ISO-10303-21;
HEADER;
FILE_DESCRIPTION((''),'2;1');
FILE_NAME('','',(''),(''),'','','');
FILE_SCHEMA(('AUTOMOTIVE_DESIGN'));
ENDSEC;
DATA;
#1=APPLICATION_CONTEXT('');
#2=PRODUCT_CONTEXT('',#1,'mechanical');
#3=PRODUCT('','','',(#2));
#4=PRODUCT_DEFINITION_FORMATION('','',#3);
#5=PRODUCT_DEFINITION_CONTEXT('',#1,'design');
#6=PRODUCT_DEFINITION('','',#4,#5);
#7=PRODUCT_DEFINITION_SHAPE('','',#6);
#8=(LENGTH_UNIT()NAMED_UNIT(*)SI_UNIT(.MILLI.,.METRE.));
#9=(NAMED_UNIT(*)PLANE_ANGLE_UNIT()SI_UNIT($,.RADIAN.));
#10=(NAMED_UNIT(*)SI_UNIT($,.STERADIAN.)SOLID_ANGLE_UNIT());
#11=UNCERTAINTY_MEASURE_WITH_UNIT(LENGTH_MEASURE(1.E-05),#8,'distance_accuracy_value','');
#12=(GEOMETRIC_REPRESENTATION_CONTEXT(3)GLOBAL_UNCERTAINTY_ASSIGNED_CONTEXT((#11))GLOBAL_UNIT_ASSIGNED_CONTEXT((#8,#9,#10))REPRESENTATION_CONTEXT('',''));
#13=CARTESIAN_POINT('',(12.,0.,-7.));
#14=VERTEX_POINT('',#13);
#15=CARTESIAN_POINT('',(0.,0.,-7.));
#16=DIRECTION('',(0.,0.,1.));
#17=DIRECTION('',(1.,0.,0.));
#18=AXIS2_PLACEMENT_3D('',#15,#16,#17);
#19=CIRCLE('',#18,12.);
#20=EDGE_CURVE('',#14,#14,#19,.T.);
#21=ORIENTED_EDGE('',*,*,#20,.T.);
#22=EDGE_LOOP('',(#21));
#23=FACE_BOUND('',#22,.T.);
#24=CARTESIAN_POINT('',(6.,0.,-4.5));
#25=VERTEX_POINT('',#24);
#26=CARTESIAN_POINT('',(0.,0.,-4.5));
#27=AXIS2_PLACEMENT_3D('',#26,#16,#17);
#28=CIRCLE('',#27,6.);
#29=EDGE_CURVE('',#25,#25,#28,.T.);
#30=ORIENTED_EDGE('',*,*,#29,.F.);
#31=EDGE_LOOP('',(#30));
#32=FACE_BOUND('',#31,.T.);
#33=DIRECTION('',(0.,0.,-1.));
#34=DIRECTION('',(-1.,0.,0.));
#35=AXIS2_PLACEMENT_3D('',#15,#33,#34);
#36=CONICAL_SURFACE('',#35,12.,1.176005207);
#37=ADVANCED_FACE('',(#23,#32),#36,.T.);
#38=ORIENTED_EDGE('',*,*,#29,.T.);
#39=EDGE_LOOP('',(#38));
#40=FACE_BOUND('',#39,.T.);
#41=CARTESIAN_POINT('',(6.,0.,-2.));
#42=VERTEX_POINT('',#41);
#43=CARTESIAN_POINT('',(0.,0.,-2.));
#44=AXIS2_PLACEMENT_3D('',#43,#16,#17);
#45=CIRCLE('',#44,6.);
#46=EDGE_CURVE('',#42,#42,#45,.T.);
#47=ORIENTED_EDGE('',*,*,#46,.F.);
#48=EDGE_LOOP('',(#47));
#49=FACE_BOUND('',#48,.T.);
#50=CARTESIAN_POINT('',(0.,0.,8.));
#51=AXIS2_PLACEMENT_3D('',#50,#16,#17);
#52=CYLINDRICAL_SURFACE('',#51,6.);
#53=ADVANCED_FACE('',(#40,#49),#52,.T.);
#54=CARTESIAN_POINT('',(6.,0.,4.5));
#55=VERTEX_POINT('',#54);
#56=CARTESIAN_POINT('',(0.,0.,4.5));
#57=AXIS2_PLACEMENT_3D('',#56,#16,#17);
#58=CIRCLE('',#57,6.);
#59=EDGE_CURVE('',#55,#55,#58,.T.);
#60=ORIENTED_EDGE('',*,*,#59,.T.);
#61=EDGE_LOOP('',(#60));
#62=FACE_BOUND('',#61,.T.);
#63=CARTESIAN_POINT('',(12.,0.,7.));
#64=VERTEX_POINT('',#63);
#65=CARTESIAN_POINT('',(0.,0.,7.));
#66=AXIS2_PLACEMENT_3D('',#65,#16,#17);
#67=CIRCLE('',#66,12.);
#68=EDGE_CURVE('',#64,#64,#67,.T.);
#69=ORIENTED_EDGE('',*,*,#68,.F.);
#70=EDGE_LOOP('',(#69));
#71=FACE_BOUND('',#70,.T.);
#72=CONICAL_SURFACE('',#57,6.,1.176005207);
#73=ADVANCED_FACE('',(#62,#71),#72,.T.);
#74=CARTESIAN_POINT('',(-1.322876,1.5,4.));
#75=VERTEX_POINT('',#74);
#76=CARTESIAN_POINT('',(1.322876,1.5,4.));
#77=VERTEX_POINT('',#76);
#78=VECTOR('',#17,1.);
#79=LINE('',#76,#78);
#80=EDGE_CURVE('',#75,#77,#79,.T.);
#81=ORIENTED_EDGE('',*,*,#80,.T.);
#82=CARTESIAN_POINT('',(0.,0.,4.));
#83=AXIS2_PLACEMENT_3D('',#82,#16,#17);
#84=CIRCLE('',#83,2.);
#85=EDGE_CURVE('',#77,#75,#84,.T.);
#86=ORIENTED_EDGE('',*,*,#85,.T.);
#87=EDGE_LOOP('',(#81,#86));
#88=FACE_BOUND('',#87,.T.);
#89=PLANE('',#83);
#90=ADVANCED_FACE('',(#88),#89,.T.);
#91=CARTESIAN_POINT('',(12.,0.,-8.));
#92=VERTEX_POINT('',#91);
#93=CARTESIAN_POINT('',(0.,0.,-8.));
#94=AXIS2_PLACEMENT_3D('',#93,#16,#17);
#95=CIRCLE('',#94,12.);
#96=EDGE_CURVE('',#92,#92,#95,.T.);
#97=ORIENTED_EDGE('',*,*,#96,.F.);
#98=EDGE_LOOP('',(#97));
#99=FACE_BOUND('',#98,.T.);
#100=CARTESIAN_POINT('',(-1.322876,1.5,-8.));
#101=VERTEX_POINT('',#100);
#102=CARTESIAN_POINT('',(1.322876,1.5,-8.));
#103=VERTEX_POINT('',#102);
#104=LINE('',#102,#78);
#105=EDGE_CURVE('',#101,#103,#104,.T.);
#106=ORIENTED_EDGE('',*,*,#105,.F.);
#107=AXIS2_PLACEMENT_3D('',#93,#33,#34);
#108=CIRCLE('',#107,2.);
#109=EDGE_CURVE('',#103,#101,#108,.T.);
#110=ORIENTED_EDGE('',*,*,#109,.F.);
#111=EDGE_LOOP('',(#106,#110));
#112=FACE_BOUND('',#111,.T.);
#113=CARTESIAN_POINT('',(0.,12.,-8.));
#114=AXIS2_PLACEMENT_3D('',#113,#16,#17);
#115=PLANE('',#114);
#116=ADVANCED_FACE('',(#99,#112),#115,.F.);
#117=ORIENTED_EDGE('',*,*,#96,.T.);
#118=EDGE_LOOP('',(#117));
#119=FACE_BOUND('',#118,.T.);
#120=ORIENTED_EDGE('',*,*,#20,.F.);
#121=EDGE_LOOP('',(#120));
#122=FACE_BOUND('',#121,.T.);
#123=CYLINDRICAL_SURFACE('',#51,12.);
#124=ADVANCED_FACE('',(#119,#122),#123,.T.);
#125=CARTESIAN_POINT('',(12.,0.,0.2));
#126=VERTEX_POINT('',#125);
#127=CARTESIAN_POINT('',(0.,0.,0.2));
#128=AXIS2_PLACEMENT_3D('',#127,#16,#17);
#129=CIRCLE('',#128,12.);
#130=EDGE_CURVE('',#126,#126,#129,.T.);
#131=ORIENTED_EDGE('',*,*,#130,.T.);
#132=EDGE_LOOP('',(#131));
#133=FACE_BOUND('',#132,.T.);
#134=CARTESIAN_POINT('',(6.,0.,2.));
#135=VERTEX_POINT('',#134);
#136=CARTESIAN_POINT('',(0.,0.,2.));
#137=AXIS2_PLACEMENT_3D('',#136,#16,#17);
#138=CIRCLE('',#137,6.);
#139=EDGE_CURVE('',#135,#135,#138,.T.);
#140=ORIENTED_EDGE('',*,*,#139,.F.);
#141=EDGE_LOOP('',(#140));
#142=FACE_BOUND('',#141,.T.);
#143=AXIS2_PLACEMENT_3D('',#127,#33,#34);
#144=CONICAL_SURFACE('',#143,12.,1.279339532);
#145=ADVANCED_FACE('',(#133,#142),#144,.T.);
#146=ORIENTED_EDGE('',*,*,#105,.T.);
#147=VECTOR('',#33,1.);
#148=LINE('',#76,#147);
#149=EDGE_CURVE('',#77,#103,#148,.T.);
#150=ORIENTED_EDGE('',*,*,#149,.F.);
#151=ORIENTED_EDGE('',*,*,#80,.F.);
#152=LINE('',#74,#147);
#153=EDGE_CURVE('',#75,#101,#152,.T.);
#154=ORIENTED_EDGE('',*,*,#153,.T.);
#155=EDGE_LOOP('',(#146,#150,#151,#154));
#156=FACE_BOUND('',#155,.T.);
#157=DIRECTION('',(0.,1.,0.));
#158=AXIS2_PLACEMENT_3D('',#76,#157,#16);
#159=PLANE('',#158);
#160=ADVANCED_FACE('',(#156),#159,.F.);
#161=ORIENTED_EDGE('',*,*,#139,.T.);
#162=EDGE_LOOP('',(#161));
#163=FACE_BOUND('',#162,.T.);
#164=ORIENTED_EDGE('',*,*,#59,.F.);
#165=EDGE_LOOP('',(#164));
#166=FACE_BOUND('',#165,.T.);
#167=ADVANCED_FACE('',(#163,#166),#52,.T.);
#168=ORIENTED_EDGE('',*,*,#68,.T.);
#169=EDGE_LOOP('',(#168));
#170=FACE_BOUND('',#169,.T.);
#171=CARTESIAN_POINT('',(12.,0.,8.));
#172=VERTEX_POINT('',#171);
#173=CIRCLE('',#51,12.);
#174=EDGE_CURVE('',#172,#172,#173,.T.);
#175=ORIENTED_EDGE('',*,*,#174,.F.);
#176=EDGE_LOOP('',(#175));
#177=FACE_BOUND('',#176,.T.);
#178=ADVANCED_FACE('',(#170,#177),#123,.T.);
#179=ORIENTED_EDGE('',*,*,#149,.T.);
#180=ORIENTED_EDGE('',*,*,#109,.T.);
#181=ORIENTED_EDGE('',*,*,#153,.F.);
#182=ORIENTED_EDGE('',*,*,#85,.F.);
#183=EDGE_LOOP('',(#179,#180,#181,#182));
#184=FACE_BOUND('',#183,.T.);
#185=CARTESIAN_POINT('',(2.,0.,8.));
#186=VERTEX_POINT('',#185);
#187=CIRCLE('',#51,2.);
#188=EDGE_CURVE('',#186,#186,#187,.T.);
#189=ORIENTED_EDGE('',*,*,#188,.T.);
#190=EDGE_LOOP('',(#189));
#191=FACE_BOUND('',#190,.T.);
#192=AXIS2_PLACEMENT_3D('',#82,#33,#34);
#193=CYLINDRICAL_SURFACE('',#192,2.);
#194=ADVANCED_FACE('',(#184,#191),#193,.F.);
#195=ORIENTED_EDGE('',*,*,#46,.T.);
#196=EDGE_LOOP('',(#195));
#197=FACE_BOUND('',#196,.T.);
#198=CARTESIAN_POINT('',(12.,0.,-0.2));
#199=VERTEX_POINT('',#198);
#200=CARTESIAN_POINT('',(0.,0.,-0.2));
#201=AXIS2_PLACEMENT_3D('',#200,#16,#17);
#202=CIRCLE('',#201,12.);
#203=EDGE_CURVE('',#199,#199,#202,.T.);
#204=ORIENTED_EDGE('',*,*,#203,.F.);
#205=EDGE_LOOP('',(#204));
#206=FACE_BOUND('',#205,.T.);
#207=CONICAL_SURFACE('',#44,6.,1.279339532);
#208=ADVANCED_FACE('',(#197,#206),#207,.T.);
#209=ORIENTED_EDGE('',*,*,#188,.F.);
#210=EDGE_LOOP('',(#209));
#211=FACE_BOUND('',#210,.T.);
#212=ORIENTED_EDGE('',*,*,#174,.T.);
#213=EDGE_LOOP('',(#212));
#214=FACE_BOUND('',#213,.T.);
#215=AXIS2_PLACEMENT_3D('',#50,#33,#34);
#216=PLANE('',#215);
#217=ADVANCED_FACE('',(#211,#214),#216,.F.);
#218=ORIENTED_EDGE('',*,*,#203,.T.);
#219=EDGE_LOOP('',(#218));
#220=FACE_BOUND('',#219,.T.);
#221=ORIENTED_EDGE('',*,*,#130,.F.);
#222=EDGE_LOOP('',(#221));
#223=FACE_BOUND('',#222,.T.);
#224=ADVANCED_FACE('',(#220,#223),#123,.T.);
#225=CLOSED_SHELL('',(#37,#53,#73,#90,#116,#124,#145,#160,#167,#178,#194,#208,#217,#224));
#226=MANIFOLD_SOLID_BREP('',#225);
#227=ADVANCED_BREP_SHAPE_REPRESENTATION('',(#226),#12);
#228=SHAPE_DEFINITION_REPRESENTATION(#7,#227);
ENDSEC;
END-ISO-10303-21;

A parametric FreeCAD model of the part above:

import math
import FreeCAD as App
import Part
import Sketcher
Q = App.Units.Quantity


def add_polygon(sketch, points):
    """Adds a closed chain of lines whose ends are joined by coincident constraints."""
    first, n = sketch.GeometryCount, len(points)
    for a, b in zip(points, points[1:] + points[:1]):
        sketch.addGeometry(Part.LineSegment(App.Vector(*a, 0), App.Vector(*b, 0)), False)
    for i in range(n):
        sketch.addConstraint(Sketcher.Constraint("Coincident", first + i, 2, first + (i + 1) % n, 1))

doc = App.newDocument("Part")
params = doc.addObject("Spreadsheet::Sheet", "Params")
for row, (alias, value) in enumerate([
    ("sketch1_width", "12 mm"),
    ("sketch1_height", "16 mm"),
    ("sketch1_height2", "1 mm"),
    ("sketch1_height3", "2.5 mm"),
    ("sketch1_height4", "0.4 mm"),
    ("revolution_angle", "360 deg"),
    ("sketch2_radius", "2 mm"),
    ("pocket1_length", "12 mm"),
    ("sketch3_diameter", "4 mm"),
    ("pocket2_length", "4 mm"),
], start=1):
    params.set(f"A{row}", alias)
    params.set(f"B{row}", "=" + value)
    params.setAlias(f"B{row}", alias)

body = doc.addObject("PartDesign::Body", "Body")

sketch1 = doc.addObject("Sketcher::SketchObject", "Sketch")
body.addObject(sketch1)
sketch1.AttachmentSupport = (doc.YZ_Plane, [""])
sketch1.MapMode = "FlatFace"
add_polygon(sketch1, [(0, 8), (0, -8), (12, -8), (12, -7), (6, -4.5), (6, -2), (12, -0.2), (12, 0.2), (6, 2), (6, 4.5), (12, 7), (12, 8)])
sketch1.addConstraint([
    Sketcher.Constraint("Vertical", 0),
    Sketcher.Constraint("Horizontal", 1),
    Sketcher.Constraint("Vertical", 2),
    Sketcher.Constraint("Vertical", 4),
    Sketcher.Constraint("Vertical", 6),
    Sketcher.Constraint("Vertical", 8),
    Sketcher.Constraint("Vertical", 10),
    Sketcher.Constraint("Horizontal", 11),
    Sketcher.Constraint("Symmetric", 0, 2, 11, 2, -1, 1),
    Sketcher.Constraint("Symmetric", 4, 2, 7, 2, -1),
    Sketcher.Constraint("Symmetric", 2, 2, 9, 2, -1),
    Sketcher.Constraint("Vertical", 2, 2, 5, 2),
    Sketcher.Constraint("Equal", 4, 8),
    Sketcher.Constraint("Equal", 5, 7),
    Sketcher.Constraint("DistanceX", 1, 1, 1, 2, Q("12 mm")),
    Sketcher.Constraint("DistanceY", 0, 2, 0, 1, Q("16 mm")),
    Sketcher.Constraint("DistanceY", 2, 1, 2, 2, Q("1 mm")),
    Sketcher.Constraint("DistanceY", 4, 1, 4, 2, Q("2.5 mm")),
    Sketcher.Constraint("DistanceY", 6, 1, 6, 2, Q("0.4 mm")),
    Sketcher.Constraint("DistanceX", -1, 1, 3, 2, Q("6 mm")),
    Sketcher.Constraint("DistanceY", 4, 2, -1, 1, Q("2 mm")),
])
sketch1.setExpression("Constraints[26]", "Params.sketch1_width")
sketch1.setExpression("Constraints[27]", "Params.sketch1_height")
sketch1.setExpression("Constraints[28]", "Params.sketch1_height2")
sketch1.setExpression("Constraints[29]", "Params.sketch1_height3")
sketch1.setExpression("Constraints[30]", "Params.sketch1_height4")
revolution = doc.addObject("PartDesign::Revolution", "Revolution")
body.addObject(revolution)
revolution.Profile = sketch1
revolution.ReferenceAxis = (sketch1, ["V_Axis"])
revolution.setExpression("Angle", "Params.revolution_angle")

sketch2 = doc.addObject("Sketcher::SketchObject", "Sketch001")
body.addObject(sketch2)
sketch2.AttachmentSupport = (doc.XY_Plane, [""])
sketch2.MapMode = "FlatFace"
sketch2.AttachmentOffset = App.Placement(App.Vector(0, 0, -8), App.Rotation())
sketch2.addGeometry([
    Part.LineSegment(App.Vector(-1.322876, 1.5, 0), App.Vector(1.322876, 1.5, 0)),
    Part.ArcOfCircle(Part.Circle(App.Vector(0, 0, 0), App.Vector(0, 0, 1), 2), math.radians(131.409622), math.radians(408.590378)),
], False)
sketch2.addConstraint([
    Sketcher.Constraint("Coincident", 0, 1, 1, 1),
    Sketcher.Constraint("Coincident", 1, 2, 0, 2),
    Sketcher.Constraint("Horizontal", 0),
    Sketcher.Constraint("Coincident", 1, 3, -1, 1),
    Sketcher.Constraint("Radius", 1, Q("2 mm")),
    Sketcher.Constraint("DistanceY", -1, 1, 0, 1, Q("1.5 mm")),
])
sketch2.setExpression("Constraints[4]", "Params.sketch2_radius")
pocket1 = doc.addObject("PartDesign::Pocket", "Pocket")
body.addObject(pocket1)
pocket1.Profile = sketch2
pocket1.setExpression("Length", "Params.pocket1_length")
pocket1.Reversed = True

sketch3 = doc.addObject("Sketcher::SketchObject", "Sketch002")
body.addObject(sketch3)
sketch3.AttachmentSupport = (doc.XY_Plane, [""])
sketch3.MapMode = "FlatFace"
sketch3.AttachmentOffset = App.Placement(App.Vector(0, 0, 4), App.Rotation())
sketch3.addGeometry(Part.Circle(App.Vector(0, 0, 0), App.Vector(0, 0, 1), 2), False)
sketch3.addConstraint([
    Sketcher.Constraint("Coincident", 0, 3, -1, 1),
    Sketcher.Constraint("Diameter", 0, Q("4 mm")),
])
sketch3.setExpression("Constraints[1]", "Params.sketch3_diameter")
pocket2 = doc.addObject("PartDesign::Pocket", "Pocket001")
body.addObject(pocket2)
pocket2.Profile = sketch3
pocket2.setExpression("Length", "Params.pocket2_length")
pocket2.Reversed = True

doc.recompute()
